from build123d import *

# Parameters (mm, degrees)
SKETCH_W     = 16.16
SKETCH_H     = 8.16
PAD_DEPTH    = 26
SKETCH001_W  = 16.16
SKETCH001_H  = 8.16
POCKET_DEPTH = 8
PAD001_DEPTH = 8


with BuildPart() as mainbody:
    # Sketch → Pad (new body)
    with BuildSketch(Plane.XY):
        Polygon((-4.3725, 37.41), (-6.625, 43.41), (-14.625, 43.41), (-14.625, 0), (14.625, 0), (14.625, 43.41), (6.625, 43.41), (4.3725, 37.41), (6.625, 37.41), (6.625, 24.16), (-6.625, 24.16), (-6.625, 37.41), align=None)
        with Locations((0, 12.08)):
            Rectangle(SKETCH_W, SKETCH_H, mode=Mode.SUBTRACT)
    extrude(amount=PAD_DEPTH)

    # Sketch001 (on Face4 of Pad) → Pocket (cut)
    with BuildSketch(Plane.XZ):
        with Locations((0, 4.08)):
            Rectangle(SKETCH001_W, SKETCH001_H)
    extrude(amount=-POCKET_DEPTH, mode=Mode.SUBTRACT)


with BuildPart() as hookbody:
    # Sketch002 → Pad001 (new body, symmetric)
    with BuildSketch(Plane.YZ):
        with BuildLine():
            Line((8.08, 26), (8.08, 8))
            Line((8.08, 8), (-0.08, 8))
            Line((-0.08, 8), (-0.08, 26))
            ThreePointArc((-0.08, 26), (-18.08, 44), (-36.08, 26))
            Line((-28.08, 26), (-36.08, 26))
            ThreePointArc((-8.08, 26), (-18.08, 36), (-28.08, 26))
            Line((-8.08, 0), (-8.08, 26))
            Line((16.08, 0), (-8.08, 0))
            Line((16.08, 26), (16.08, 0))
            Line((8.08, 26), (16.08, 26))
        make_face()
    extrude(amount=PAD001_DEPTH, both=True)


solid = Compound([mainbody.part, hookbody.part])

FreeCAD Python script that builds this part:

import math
import FreeCAD as App
import Part
import Sketcher
from FreeCAD import Vector
Q = App.Units.Quantity


def add_polygon(sketch, points):
    """Adds a closed chain of lines whose ends are joined by coincident constraints."""
    first, n = sketch.GeometryCount, len(points)
    for a, b in zip(points, points[1:] + points[:1]):
        sketch.addGeometry(Part.LineSegment(App.Vector(*a, 0), App.Vector(*b, 0)), False)
    for i in range(n):
        sketch.addConstraint(Sketcher.Constraint("Coincident", first + i, 2, first + (i + 1) % n, 1))

doc = App.newDocument("Part")
body = doc.addObject("PartDesign::Body", "Body")

# Sketch on XY plane
sketch1 = body.newObject("Sketcher::SketchObject", "Sketch")
sketch1.AttachmentSupport = (doc.getObject("XY_Plane"), [""])
sketch1.MapMode = "FlatFace"
add_polygon(sketch1, [(-4.3725, 37.41), (-6.625, 43.41), (-14.625, 43.41), (-14.625, 0), (14.625, 0), (14.625, 43.41), (6.625, 43.41), (4.3725, 37.41), (6.625, 37.41), (6.625, 24.16), (-6.625, 24.16), (-6.625, 37.41)])  # lines 0-11
add_polygon(sketch1, [(8.08, 8), (-8.08, 8), (-8.08, 16.16), (8.08, 16.16)])  # lines 12-15
sketch1.addConstraint([
    Sketcher.Constraint("Horizontal", 1),
    Sketcher.Constraint("Vertical", 2),
    Sketcher.Constraint("Horizontal", 3),
    Sketcher.Constraint("Vertical", 4),
    Sketcher.Constraint("Horizontal", 5),
    Sketcher.Constraint("Horizontal", 7),
    Sketcher.Constraint("Vertical", 8),
    Sketcher.Constraint("Horizontal", 9),
    Sketcher.Constraint("Vertical", 10),
    Sketcher.Constraint("Horizontal", 11),
    Sketcher.Constraint("Horizontal", 12),
    Sketcher.Constraint("Vertical", 13),
    Sketcher.Constraint("Horizontal", 14),
    Sketcher.Constraint("Vertical", 15),
    Sketcher.Constraint("Symmetric", 2, 2, 3, 2, -1, 1),
    Sketcher.Constraint("Symmetric", 0, 2, 5, 2, -2),
    Sketcher.Constraint("Symmetric", 7, 2, 10, 2, -2),
    Sketcher.Constraint("Vertical", 5, 2, 7, 2),
    Sketcher.Constraint("Equal", 7, 11),
    Sketcher.Constraint("Equal", 9, 8),
    Sketcher.Constraint("DistanceX", 1, 2, 1, 1, Q("8 mm")),
    Sketcher.Constraint("DistanceY", -1, 1, 12, 2, Q("8 mm")),
    Sketcher.Constraint("DistanceY", 6, 2, 5, 2, Q("6 mm")),
    Sketcher.Constraint("DistanceY", 13, 2, 9, 2, Q("8 mm")),
    Sketcher.Constraint("DistanceX", 3, 1, 3, 2, Q("29.25 mm")),
    Sketcher.Constraint("DistanceX", 12, 2, 12, 1, Q("16.16 mm")),
    Sketcher.Constraint("DistanceY", 2, 2, 2, 1, Q("43.41 mm")),
    Sketcher.Constraint("DistanceX", 12, 2, -1, 1, Q("8.08 mm")),
    Sketcher.Constraint("DistanceX", 7, 1, 7, 2, Q("2.2525 mm")),
])
pad1 = body.newObject("PartDesign::Pad", "Pad")
pad1.Profile = sketch1
pad1.Length = 26

# Sketch on XZ plane
sketch2 = body.newObject("Sketcher::SketchObject", "Sketch001")
sketch2.AttachmentSupport = (doc.getObject("XZ_Plane"), [""])
sketch2.MapMode = "FlatFace"
add_polygon(sketch2, [(-8.08, 8.16), (-8.08, 0), (8.08, 0), (8.08, 8.16)])  # lines 0-3
sketch2.addConstraint([
    Sketcher.Constraint("Vertical", 0),
    Sketcher.Constraint("Horizontal", 1),
    Sketcher.Constraint("Vertical", 2),
    Sketcher.Constraint("Horizontal", 3),
    Sketcher.Constraint("Symmetric", 0, 2, 1, 2, -1, 1),
    Sketcher.Constraint("DistanceX", 1, 1, 1, 2, Q("16.16 mm")),
    Sketcher.Constraint("DistanceY", 0, 2, 0, 1, Q("8.16 mm")),
])
pocket1 = body.newObject("PartDesign::Pocket", "Pocket")
pocket1.Profile = sketch2
pocket1.Length = 8
body2 = doc.addObject("PartDesign::Body", "Body001")

# Sketch on YZ plane
sketch3 = body2.newObject("Sketcher::SketchObject", "Sketch002")
sketch3.AttachmentSupport = (doc.getObject("YZ_Plane001"), [""])
sketch3.MapMode = "FlatFace"
sketch3.addGeometry([
    Part.LineSegment(Vector(8.08, 26, 0), Vector(8.08, 8, 0)),  # 0
    Part.LineSegment(Vector(8.08, 8, 0), Vector(-0.08, 8, 0)),  # 1
    Part.LineSegment(Vector(-0.08, 8, 0), Vector(-0.08, 26, 0)),  # 2
    Part.ArcOfCircle(Part.Circle(Vector(-18.08, 26, 0), Vector(0, 0, 1), 18), math.radians(0), math.radians(180)),  # 3
    Part.LineSegment(Vector(-36.08, 26, 0), Vector(-28.08, 26, 0)),  # 4
    Part.ArcOfCircle(Part.Circle(Vector(-18.08, 26, 0), Vector(0, 0, 1), 10), math.radians(0), math.radians(180)),  # 5
    Part.LineSegment(Vector(-8.08, 26, 0), Vector(-8.08, 0, 0)),  # 6
    Part.LineSegment(Vector(-8.08, 0, 0), Vector(16.08, 0, 0)),  # 7
    Part.LineSegment(Vector(16.08, 0, 0), Vector(16.08, 26, 0)),  # 8
    Part.LineSegment(Vector(16.08, 26, 0), Vector(8.08, 26, 0)),  # 9
], False)
sketch3.addConstraint([
    Sketcher.Constraint("Coincident", 0, 2, 1, 1),
    Sketcher.Constraint("Coincident", 1, 2, 2, 1),
    Sketcher.Constraint("Tangent", 2, 2, 3, 1),
    Sketcher.Constraint("Coincident", 3, 2, 4, 1),
    Sketcher.Constraint("Coincident", 4, 2, 5, 2),
    Sketcher.Constraint("Tangent", 5, 1, 6, 1),
    Sketcher.Constraint("Coincident", 6, 2, 7, 1),
    Sketcher.Constraint("Coincident", 7, 2, 8, 1),
    Sketcher.Constraint("Coincident", 8, 2, 9, 1),
    Sketcher.Constraint("Coincident", 9, 2, 0, 1),
    Sketcher.Constraint("Vertical", 0),
    Sketcher.Constraint("Horizontal", 1),
    Sketcher.Constraint("Vertical", 2),
    Sketcher.Constraint("Horizontal", 4),
    Sketcher.Constraint("Vertical", 6),
    Sketcher.Constraint("Horizontal", 7),
    Sketcher.Constraint("Vertical", 8),
    Sketcher.Constraint("Horizontal", 9),
    Sketcher.Constraint("Coincident", 5, 3, 3, 3),
    Sketcher.Constraint("Symmetric", 5, 1, 9, 2, -2),
    Sketcher.Constraint("PointOnObject", 6, 2, -1),
    Sketcher.Constraint("Horizontal", 2, 2, 3, 2),
    Sketcher.Constraint("Equal", 4, 9),
    Sketcher.Constraint("Radius", 3, Q("18 mm")),
    Sketcher.Constraint("Radius", 5, Q("10 mm")),
    Sketcher.Constraint("DistanceY", 0, 2, 0, 1, Q("18 mm")),
    Sketcher.Constraint("DistanceY", 6, 2, 6, 1, Q("26 mm")),
    Sketcher.Constraint("DistanceX", 1, 2, 1, 1, Q("8.16 mm")),
])
pad2 = body2.newObject("PartDesign::Pad", "Pad001")
pad2.Profile = sketch3
pad2.Length = 16
pad2.Midplane = True

doc.recompute()
